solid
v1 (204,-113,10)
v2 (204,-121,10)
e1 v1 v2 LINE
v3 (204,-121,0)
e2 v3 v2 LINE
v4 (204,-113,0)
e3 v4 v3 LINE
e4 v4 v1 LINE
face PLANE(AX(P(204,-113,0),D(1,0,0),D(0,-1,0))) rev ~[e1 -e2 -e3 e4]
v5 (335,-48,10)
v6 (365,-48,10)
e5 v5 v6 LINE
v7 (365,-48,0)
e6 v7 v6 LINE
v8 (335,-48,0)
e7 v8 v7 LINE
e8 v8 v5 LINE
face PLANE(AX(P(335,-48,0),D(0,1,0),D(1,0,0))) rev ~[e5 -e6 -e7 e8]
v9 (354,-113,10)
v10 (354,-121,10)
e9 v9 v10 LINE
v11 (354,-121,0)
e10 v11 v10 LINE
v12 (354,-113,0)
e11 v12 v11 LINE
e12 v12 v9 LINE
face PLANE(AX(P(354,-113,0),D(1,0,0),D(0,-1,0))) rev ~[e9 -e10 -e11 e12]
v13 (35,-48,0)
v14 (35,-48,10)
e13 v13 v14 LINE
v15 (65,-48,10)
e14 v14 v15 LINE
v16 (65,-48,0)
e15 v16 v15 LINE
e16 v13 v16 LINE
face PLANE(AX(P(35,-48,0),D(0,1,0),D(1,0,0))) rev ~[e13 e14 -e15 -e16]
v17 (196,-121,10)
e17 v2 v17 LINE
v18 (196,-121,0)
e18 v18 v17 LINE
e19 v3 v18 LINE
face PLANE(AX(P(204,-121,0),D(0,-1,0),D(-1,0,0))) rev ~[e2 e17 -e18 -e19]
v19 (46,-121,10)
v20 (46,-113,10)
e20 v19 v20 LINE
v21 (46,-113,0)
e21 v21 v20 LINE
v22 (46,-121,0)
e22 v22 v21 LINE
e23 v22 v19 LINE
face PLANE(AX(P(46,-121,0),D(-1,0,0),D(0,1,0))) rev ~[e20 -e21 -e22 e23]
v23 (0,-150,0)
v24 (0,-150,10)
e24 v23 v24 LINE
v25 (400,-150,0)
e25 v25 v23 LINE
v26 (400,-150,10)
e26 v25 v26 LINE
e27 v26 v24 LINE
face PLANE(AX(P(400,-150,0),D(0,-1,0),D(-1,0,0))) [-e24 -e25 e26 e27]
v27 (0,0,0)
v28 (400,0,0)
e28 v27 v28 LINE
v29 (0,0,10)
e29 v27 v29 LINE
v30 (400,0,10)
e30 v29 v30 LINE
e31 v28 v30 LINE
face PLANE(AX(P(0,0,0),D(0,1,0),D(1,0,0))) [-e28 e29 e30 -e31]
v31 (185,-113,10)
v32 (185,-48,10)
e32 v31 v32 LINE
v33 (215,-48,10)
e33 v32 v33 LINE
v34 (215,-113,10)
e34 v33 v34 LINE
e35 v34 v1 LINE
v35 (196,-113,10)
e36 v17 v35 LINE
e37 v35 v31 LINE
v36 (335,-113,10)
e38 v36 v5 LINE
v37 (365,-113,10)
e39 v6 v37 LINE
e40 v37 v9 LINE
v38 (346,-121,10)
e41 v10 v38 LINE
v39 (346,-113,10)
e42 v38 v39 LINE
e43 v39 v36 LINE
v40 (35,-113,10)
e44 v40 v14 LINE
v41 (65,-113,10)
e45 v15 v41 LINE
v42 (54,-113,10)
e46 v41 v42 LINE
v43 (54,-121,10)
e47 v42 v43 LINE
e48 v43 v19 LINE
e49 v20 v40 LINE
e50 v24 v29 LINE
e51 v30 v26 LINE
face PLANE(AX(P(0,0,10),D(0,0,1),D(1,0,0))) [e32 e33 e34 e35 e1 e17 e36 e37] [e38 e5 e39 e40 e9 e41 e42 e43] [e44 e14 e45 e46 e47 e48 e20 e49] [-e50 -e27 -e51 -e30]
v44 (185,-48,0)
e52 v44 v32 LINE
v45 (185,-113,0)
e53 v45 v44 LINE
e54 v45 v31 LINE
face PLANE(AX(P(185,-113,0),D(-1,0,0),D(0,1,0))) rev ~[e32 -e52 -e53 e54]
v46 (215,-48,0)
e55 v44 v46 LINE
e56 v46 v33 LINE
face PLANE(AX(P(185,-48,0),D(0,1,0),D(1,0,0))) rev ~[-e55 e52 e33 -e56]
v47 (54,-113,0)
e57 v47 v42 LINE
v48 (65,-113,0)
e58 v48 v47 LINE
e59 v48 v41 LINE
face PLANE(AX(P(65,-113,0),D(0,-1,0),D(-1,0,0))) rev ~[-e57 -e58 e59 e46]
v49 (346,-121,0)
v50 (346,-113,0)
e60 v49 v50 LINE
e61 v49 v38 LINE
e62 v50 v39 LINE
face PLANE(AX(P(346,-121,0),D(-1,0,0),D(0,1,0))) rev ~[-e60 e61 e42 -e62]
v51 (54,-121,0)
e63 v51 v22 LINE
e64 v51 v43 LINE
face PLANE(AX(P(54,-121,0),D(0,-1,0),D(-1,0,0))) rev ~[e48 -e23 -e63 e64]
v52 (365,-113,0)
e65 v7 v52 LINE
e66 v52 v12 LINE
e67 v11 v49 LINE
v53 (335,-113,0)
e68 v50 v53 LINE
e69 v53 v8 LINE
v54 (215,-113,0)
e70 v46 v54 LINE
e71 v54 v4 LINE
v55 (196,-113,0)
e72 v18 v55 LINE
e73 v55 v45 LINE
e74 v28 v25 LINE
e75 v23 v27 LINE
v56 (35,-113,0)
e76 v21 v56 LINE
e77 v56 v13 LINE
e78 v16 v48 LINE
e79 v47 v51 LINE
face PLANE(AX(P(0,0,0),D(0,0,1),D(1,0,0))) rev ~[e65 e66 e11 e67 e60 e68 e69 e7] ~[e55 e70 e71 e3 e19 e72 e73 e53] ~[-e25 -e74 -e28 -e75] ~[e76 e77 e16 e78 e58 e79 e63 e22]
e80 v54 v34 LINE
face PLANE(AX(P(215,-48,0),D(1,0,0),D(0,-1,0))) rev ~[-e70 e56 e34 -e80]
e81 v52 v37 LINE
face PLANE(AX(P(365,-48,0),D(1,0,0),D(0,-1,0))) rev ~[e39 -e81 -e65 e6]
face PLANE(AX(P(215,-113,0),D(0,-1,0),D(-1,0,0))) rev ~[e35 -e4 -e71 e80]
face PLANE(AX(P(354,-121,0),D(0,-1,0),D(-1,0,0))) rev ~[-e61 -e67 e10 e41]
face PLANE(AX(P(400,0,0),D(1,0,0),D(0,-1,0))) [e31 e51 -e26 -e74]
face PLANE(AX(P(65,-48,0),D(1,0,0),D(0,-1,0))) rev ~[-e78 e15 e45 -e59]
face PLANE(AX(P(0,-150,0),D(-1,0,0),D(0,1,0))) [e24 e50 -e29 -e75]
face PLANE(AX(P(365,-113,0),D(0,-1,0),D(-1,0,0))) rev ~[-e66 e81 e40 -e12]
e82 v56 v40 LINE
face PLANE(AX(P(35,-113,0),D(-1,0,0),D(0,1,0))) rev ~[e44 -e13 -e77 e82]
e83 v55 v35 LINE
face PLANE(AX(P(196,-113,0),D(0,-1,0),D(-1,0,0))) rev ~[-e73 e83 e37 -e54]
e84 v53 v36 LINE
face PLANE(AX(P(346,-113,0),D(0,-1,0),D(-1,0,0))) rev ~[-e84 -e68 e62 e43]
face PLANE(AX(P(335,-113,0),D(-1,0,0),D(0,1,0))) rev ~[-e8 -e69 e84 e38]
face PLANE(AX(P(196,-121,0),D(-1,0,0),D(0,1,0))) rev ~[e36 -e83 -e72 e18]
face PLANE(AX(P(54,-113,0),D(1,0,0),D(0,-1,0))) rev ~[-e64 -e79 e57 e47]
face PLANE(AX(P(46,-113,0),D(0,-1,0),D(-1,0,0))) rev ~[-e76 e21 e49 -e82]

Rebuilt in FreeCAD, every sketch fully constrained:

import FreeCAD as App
import Part
import Sketcher

V = App.Vector


def add_polygon(sketch, points):
    """Adds a closed chain of lines whose ends are joined by coincident constraints."""
    first, n = sketch.GeometryCount, len(points)
    for a, b in zip(points, points[1:] + points[:1]):
        sketch.addGeometry(Part.LineSegment(App.Vector(*a, 0), App.Vector(*b, 0)), False)
    for i in range(n):
        sketch.addConstraint(Sketcher.Constraint("Coincident", first + i, 2, first + (i + 1) % n, 1))

doc = App.newDocument("Part")
body = doc.addObject("PartDesign::Body", "Body")

sketch1 = body.newObject("Sketcher::SketchObject", "Sketch")
sketch1.AttachmentSupport = (doc.getObject("XY_Plane"), [""])
sketch1.MapMode = "FlatFace"
add_polygon(sketch1, [(400, 0), (0, 0), (0, -150), (400, -150)])
add_polygon(sketch1, [(46, -113), (35, -113), (35, -48), (65, -48), (65, -113), (54, -113), (54, -121), (46, -121)])
add_polygon(sketch1, [(185, -113), (185, -48), (215, -48), (215, -113), (204, -113), (204, -121), (196, -121), (196, -113)])
add_polygon(sketch1, [(335, -113), (335, -48), (365, -48), (365, -113), (354, -113), (354, -121), (346, -121), (346, -113)])
sketch1.addConstraint(Sketcher.Constraint("Horizontal", 0))
sketch1.addConstraint(Sketcher.Constraint("Vertical", 1))
sketch1.addConstraint(Sketcher.Constraint("Horizontal", 2))
sketch1.addConstraint(Sketcher.Constraint("Vertical", 3))
sketch1.addConstraint(Sketcher.Constraint("Horizontal", 4))
sketch1.addConstraint(Sketcher.Constraint("Vertical", 5))
sketch1.addConstraint(Sketcher.Constraint("Horizontal", 6))
sketch1.addConstraint(Sketcher.Constraint("Vertical", 7))
sketch1.addConstraint(Sketcher.Constraint("Horizontal", 8))
sketch1.addConstraint(Sketcher.Constraint("Vertical", 9))
sketch1.addConstraint(Sketcher.Constraint("Horizontal", 10))
sketch1.addConstraint(Sketcher.Constraint("Vertical", 11))
sketch1.addConstraint(Sketcher.Constraint("Vertical", 12))
sketch1.addConstraint(Sketcher.Constraint("Horizontal", 13))
sketch1.addConstraint(Sketcher.Constraint("Vertical", 14))
sketch1.addConstraint(Sketcher.Constraint("Horizontal", 15))
sketch1.addConstraint(Sketcher.Constraint("Vertical", 16))
sketch1.addConstraint(Sketcher.Constraint("Horizontal", 17))
sketch1.addConstraint(Sketcher.Constraint("Vertical", 18))
sketch1.addConstraint(Sketcher.Constraint("Horizontal", 19))
sketch1.addConstraint(Sketcher.Constraint("Vertical", 20))
sketch1.addConstraint(Sketcher.Constraint("Horizontal", 21))
sketch1.addConstraint(Sketcher.Constraint("Vertical", 22))
sketch1.addConstraint(Sketcher.Constraint("Horizontal", 23))
sketch1.addConstraint(Sketcher.Constraint("Vertical", 24))
sketch1.addConstraint(Sketcher.Constraint("Horizontal", 25))
sketch1.addConstraint(Sketcher.Constraint("Vertical", 26))
sketch1.addConstraint(Sketcher.Constraint("Horizontal", 27))
sketch1.addConstraint(Sketcher.Constraint("Coincident", 0, 2, -1, 1))
sketch1.addConstraint(Sketcher.Constraint("Horizontal", 4, 2, 7, 2))
sketch1.addConstraint(Sketcher.Constraint("Horizontal", 6, 2, 12, 2))
sketch1.addConstraint(Sketcher.Constraint("Horizontal", 11, 2, 14, 2))
sketch1.addConstraint(Sketcher.Constraint("Horizontal", 10, 2, 16, 2))
sketch1.addConstraint(Sketcher.Constraint("Horizontal", 15, 2, 18, 2))
sketch1.addConstraint(Sketcher.Constraint("Horizontal", 13, 2, 20, 2))
sketch1.addConstraint(Sketcher.Constraint("Horizontal", 19, 2, 22, 2))
sketch1.addConstraint(Sketcher.Constraint("Horizontal", 17, 2, 24, 2))
sketch1.addConstraint(Sketcher.Constraint("Horizontal", 23, 2, 26, 2))
sketch1.addConstraint(Sketcher.Constraint("Equal", 4, 8))
sketch1.addConstraint(Sketcher.Constraint("Equal", 6, 13))
sketch1.addConstraint(Sketcher.Constraint("Equal", 8, 15))
sketch1.addConstraint(Sketcher.Constraint("Equal", 10, 17))
sketch1.addConstraint(Sketcher.Constraint("Equal", 13, 21))
sketch1.addConstraint(Sketcher.Constraint("Equal", 19, 23))
sketch1.addConstraint(Sketcher.Constraint("Equal", 17, 25))
sketch1.addConstraint(Sketcher.Constraint("Equal", 25, 9))
sketch1.addConstraint(Sketcher.Constraint("DistanceX", 0, 2, 0, 1, 400.0))
sketch1.addConstraint(Sketcher.Constraint("DistanceX", 4, 2, 4, 1, 11.0))
sketch1.addConstraint(Sketcher.Constraint("DistanceX", 6, 1, 6, 2, 30.0))
sketch1.addConstraint(Sketcher.Constraint("DistanceY", 1, 2, 1, 1, 150.0))
sketch1.addConstraint(Sketcher.Constraint("DistanceY", 5, 1, 5, 2, 65.0))
sketch1.addConstraint(Sketcher.Constraint("DistanceX", -1, 1, 4, 2, 35.0))
sketch1.addConstraint(Sketcher.Constraint("DistanceX", -1, 1, 12, 2, 185.0))
sketch1.addConstraint(Sketcher.Constraint("DistanceY", 1, 2, 4, 2, 37.0))
sketch1.addConstraint(Sketcher.Constraint("DistanceX", 20, 2, 3, 2, 65.0))
pad1 = body.newObject("PartDesign::Pad", "Pad")
pad1.Profile = sketch1
pad1.Length = 10

doc.recompute()
